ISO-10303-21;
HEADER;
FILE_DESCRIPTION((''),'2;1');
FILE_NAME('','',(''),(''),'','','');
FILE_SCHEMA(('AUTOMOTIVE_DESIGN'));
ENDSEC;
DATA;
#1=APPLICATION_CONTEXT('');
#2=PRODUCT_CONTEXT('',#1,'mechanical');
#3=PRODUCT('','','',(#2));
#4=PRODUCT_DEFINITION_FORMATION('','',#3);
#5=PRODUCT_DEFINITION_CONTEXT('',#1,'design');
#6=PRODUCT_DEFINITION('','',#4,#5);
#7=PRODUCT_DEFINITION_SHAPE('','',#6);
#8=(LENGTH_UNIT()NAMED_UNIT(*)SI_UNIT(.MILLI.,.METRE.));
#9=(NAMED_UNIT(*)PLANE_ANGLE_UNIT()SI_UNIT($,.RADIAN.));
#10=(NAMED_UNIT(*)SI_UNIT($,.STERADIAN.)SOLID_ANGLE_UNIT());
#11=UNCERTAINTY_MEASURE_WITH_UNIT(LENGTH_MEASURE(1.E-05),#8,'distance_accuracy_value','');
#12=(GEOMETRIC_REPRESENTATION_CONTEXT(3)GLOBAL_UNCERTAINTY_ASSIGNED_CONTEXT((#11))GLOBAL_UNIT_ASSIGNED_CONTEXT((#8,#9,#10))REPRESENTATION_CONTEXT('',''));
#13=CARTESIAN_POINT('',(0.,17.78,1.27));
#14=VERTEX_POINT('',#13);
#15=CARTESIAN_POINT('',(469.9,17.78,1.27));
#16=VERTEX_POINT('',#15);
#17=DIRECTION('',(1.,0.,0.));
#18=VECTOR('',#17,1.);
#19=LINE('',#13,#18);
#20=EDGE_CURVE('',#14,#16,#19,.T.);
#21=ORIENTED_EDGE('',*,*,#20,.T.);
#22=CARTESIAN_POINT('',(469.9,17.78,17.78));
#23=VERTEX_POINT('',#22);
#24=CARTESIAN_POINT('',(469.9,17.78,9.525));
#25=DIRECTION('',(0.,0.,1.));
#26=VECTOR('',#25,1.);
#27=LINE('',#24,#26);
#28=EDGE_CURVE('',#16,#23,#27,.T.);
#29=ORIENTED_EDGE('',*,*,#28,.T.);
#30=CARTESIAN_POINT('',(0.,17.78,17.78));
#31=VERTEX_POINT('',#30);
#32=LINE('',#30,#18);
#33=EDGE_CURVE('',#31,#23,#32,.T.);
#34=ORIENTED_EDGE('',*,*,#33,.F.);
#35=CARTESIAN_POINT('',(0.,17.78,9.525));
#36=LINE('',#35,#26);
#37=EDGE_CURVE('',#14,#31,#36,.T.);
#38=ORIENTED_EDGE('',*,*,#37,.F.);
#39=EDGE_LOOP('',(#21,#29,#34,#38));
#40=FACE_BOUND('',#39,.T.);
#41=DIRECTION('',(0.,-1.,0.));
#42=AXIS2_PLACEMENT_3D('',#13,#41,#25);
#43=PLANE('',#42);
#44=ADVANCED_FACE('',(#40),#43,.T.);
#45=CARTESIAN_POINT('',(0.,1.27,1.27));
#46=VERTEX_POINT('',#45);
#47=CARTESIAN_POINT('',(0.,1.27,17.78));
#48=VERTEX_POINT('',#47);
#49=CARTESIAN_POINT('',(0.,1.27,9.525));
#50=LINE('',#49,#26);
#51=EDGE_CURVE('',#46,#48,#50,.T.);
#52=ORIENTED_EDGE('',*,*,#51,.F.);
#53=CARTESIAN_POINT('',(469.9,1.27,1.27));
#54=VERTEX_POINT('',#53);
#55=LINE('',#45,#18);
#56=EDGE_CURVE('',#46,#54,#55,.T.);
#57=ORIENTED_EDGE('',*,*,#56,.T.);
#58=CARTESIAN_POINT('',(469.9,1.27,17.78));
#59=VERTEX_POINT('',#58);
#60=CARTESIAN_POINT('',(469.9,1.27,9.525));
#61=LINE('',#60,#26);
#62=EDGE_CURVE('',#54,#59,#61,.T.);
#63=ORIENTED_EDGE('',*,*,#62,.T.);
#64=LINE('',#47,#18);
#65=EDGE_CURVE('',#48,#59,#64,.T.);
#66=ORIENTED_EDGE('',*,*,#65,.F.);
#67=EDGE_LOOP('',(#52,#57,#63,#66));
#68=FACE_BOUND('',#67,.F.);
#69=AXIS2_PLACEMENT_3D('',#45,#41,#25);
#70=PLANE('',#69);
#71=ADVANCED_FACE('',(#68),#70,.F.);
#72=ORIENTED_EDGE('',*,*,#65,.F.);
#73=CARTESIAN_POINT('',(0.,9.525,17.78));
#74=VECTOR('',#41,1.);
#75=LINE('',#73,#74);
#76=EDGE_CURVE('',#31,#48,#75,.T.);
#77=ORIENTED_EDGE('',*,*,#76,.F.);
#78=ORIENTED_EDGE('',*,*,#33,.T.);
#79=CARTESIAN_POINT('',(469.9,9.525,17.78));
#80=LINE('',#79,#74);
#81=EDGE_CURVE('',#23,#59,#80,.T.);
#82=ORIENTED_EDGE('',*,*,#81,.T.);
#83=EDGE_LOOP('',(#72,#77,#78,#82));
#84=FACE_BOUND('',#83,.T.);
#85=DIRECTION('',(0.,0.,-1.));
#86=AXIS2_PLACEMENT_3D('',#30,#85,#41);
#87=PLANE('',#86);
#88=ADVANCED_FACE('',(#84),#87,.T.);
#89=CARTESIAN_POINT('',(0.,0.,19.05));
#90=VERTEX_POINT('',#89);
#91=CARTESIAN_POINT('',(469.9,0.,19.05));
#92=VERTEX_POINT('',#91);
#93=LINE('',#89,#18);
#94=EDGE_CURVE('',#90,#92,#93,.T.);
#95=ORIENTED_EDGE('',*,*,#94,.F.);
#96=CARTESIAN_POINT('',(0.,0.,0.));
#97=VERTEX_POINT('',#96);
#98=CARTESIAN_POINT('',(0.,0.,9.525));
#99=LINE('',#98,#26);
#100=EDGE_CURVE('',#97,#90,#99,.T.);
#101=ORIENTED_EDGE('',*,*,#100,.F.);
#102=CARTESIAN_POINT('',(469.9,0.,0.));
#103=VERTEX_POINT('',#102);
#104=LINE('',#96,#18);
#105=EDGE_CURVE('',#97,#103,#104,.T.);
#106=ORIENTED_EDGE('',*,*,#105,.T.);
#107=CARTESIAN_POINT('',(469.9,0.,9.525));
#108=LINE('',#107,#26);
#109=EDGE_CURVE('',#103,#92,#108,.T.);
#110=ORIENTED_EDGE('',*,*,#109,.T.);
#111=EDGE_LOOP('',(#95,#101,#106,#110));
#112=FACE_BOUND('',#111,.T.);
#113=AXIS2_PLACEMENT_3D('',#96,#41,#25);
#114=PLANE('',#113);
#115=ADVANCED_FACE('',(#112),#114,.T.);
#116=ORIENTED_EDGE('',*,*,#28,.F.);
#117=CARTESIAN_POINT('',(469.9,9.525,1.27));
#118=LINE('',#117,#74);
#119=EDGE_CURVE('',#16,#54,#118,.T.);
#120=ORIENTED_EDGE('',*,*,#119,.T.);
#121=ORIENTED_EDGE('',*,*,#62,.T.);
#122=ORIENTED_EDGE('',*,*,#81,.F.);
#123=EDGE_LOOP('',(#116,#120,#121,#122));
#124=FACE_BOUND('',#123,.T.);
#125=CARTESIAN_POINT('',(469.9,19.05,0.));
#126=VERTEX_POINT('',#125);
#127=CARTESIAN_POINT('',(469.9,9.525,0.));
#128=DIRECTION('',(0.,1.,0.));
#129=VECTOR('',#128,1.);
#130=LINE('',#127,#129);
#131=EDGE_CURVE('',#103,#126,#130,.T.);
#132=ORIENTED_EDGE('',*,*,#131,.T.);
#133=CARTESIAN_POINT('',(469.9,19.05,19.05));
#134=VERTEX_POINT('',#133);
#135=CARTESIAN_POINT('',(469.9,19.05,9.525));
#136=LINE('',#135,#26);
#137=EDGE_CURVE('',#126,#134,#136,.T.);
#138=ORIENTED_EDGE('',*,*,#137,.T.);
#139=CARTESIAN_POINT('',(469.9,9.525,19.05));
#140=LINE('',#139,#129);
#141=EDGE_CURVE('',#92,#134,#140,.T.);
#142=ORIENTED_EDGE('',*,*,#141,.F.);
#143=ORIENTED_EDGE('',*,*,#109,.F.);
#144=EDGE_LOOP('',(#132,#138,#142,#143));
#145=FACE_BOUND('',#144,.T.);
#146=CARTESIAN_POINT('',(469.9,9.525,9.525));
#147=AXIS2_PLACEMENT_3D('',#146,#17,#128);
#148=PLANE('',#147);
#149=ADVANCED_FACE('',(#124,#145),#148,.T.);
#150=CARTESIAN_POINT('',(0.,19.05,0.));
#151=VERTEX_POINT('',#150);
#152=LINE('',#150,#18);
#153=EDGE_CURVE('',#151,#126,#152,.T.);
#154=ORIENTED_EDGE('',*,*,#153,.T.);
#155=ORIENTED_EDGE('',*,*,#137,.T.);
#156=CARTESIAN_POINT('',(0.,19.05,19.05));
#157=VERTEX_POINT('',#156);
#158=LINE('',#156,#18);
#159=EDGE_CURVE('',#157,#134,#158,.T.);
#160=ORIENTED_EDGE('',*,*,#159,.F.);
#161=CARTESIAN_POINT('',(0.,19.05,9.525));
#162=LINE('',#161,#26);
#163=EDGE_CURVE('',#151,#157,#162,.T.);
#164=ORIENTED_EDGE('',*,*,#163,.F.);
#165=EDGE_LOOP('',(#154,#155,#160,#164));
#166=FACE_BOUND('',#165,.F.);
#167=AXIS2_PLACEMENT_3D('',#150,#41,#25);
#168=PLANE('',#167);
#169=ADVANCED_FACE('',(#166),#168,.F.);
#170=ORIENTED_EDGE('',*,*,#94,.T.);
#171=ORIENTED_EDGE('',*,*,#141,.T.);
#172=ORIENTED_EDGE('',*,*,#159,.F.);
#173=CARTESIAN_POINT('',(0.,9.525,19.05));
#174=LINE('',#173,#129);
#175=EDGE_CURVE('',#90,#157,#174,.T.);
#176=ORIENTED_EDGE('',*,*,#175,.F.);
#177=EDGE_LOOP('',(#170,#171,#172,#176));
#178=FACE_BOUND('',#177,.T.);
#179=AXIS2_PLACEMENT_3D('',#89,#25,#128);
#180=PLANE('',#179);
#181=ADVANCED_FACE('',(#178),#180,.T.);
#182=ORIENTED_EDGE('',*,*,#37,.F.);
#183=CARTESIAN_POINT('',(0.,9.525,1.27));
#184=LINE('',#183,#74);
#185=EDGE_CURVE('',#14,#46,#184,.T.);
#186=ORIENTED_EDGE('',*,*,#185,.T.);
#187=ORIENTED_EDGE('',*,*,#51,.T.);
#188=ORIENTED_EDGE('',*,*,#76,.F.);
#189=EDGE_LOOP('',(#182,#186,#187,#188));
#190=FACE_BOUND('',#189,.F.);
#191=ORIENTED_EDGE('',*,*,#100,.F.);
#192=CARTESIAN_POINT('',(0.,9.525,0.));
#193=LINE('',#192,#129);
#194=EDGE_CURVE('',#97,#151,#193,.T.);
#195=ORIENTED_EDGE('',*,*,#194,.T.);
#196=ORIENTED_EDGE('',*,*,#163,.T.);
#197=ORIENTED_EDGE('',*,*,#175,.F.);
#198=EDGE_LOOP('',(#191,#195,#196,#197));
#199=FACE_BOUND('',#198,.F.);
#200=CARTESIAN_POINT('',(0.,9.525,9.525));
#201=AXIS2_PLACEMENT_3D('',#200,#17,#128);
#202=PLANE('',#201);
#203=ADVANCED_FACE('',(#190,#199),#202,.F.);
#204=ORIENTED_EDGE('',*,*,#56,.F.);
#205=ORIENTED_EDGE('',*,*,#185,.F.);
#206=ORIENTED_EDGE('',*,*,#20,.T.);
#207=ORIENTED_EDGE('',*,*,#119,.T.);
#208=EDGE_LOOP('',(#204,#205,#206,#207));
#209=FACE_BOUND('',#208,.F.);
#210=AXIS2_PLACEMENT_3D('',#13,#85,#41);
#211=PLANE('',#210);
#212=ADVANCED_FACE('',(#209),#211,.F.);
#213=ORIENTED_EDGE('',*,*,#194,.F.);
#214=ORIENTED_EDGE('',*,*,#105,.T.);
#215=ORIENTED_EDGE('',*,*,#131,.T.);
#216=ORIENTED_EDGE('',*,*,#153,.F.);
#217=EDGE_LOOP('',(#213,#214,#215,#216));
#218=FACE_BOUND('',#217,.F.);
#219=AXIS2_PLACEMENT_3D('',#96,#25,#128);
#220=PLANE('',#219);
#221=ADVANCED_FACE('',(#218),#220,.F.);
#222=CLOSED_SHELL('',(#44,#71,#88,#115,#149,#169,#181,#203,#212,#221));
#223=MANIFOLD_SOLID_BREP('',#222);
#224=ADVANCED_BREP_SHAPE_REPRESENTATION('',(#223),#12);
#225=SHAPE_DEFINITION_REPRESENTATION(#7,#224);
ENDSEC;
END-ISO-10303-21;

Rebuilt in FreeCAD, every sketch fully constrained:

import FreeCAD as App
import Part
import Sketcher
from FreeCAD import Vector
Q = App.Units.Quantity

doc = App.newDocument("Part")
params = doc.addObject("Spreadsheet::Sheet", "Params")
for row, (alias, value) in enumerate([
    ("sketch1_width", "0.75 in"),
    ("pad1_length", "18.5 in"),
    ("sketch2_width", "0.65 in"),
    ("pocket1_length", "18.5 in"),
], start=1):
    params.set(f"A{row}", alias)
    params.set(f"B{row}", "=" + value)
    params.setAlias(f"B{row}", alias)

body = doc.addObject("PartDesign::Body", "Body")

# Sketch on YZ plane
sketch1 = body.newObject("Sketcher::SketchObject", "Sketch")
sketch1.AttachmentSupport = (doc.getObject("YZ_Plane"), [""])
sketch1.MapMode = "FlatFace"
sketch1.addGeometry([
    Part.LineSegment(Vector(0, 19, 0), Vector(0, 0, 0)),
    Part.LineSegment(Vector(0, 0, 0), Vector(19, 0, 0)),
    Part.LineSegment(Vector(19, 0, 0), Vector(19, 19, 0)),
    Part.LineSegment(Vector(19, 19, 0), Vector(0, 19, 0)),
], False)
sketch1.addConstraint([
    Sketcher.Constraint("Coincident", 0, 2, 1, 1),
    Sketcher.Constraint("Coincident", 1, 2, 2, 1),
    Sketcher.Constraint("Coincident", 2, 2, 3, 1),
    Sketcher.Constraint("Coincident", 3, 2, 0, 1),
    Sketcher.Constraint("Vertical", 0),
    Sketcher.Constraint("Horizontal", 1),
    Sketcher.Constraint("Vertical", 2),
    Sketcher.Constraint("Horizontal", 3),
    Sketcher.Constraint("Coincident", 0, 2, -1, 1),
    Sketcher.Constraint("Equal", 3, 0),
    Sketcher.Constraint("DistanceX", 1, 1, 1, 2, Q("0.75 in")),
])
sketch1.setExpression("Constraints[10]", "Params.sketch1_width")
pad1 = body.newObject("PartDesign::Pad", "Pad")
pad1.Profile = sketch1
pad1.setExpression("Length", "Params.pad1_length")

# Sketch on YZ plane
sketch2 = body.newObject("Sketcher::SketchObject", "Sketch001")
sketch2.AttachmentSupport = (doc.getObject("YZ_Plane"), [""])
sketch2.MapMode = "FlatFace"
sketch2.addGeometry([
    Part.LineSegment(Vector(18, 18, 0), Vector(18, 1, 0)),
    Part.LineSegment(Vector(18, 1, 0), Vector(1, 1, 0)),
    Part.LineSegment(Vector(1, 1, 0), Vector(1, 18, 0)),
    Part.LineSegment(Vector(1, 18, 0), Vector(18, 18, 0)),
], False)
sketch2.addConstraint([
    Sketcher.Constraint("Coincident", 0, 2, 1, 1),
    Sketcher.Constraint("Coincident", 1, 2, 2, 1),
    Sketcher.Constraint("Coincident", 2, 2, 3, 1),
    Sketcher.Constraint("Coincident", 3, 2, 0, 1),
    Sketcher.Constraint("Vertical", 0),
    Sketcher.Constraint("Horizontal", 1),
    Sketcher.Constraint("Vertical", 2),
    Sketcher.Constraint("Horizontal", 3),
    Sketcher.Constraint("Equal", 3, 0),
    Sketcher.Constraint("DistanceX", 1, 2, 1, 1, Q("0.65 in")),
    Sketcher.Constraint("DistanceX", -1, 1, 0, 2, Q("0.7 in")),
    Sketcher.Constraint("DistanceY", -1, 1, 2, 2, Q("0.7 in")),
])
sketch2.setExpression("Constraints[9]", "Params.sketch2_width")
pocket1 = body.newObject("PartDesign::Pocket", "Pocket")
pocket1.Profile = sketch2
pocket1.setExpression("Length", "Params.pocket1_length")
pocket1.Reversed = True

doc.recompute()
